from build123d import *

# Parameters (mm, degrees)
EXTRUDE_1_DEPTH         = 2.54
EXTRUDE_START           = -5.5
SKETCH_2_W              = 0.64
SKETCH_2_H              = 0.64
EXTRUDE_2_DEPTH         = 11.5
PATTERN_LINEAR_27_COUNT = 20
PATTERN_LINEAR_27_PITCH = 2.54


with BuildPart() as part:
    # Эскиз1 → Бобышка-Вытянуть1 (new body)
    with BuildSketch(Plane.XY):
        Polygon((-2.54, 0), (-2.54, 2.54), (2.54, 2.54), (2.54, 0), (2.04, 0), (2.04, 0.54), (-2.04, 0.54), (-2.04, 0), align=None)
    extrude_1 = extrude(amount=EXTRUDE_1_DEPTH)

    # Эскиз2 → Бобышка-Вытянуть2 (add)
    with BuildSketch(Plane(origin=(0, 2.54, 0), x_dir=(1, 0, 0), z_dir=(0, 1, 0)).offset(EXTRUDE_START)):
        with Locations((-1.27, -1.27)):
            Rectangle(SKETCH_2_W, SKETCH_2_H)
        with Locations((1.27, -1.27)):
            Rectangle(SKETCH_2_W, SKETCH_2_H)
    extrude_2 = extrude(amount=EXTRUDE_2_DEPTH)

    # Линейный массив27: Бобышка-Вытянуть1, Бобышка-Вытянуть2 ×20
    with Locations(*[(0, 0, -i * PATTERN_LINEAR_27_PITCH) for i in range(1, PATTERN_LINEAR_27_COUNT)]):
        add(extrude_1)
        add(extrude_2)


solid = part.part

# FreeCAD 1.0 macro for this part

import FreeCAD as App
import Part
import Sketcher

V = App.Vector

doc = App.newDocument("Part")
body = doc.addObject("PartDesign::Body", "Body")

sketch1 = body.newObject("Sketcher::SketchObject", "Sketch")
sketch1.AttachmentSupport = (doc.getObject("XY_Plane"), [""])
sketch1.MapMode = "FlatFace"
sketch1.addGeometry(Part.LineSegment(V(-2.5, 2.5, 0), V(-2.5, 0, 0)), False)
sketch1.addGeometry(Part.LineSegment(V(-2.5, 0, 0), V(-2, 0, 0)), False)
sketch1.addGeometry(Part.LineSegment(V(-2, 0, 0), V(-2, 0.5, 0)), False)
sketch1.addGeometry(Part.LineSegment(V(-2, 0.5, 0), V(2, 0.5, 0)), False)
sketch1.addGeometry(Part.LineSegment(V(2, 0.5, 0), V(2, 0, 0)), False)
sketch1.addGeometry(Part.LineSegment(V(2, 0, 0), V(2.5, 0, 0)), False)
sketch1.addGeometry(Part.LineSegment(V(2.5, 0, 0), V(2.5, 2.5, 0)), False)
sketch1.addGeometry(Part.LineSegment(V(2.5, 2.5, 0), V(-2.5, 2.5, 0)), False)
sketch1.addConstraint(Sketcher.Constraint("Coincident", 0, 2, 1, 1))
sketch1.addConstraint(Sketcher.Constraint("Coincident", 1, 2, 2, 1))
sketch1.addConstraint(Sketcher.Constraint("Coincident", 2, 2, 3, 1))
sketch1.addConstraint(Sketcher.Constraint("Coincident", 3, 2, 4, 1))
sketch1.addConstraint(Sketcher.Constraint("Coincident", 4, 2, 5, 1))
sketch1.addConstraint(Sketcher.Constraint("Coincident", 5, 2, 6, 1))
sketch1.addConstraint(Sketcher.Constraint("Coincident", 6, 2, 7, 1))
sketch1.addConstraint(Sketcher.Constraint("Coincident", 7, 2, 0, 1))
sketch1.addConstraint(Sketcher.Constraint("Vertical", 0))
sketch1.addConstraint(Sketcher.Constraint("Horizontal", 1))
sketch1.addConstraint(Sketcher.Constraint("Vertical", 2))
sketch1.addConstraint(Sketcher.Constraint("Horizontal", 3))
sketch1.addConstraint(Sketcher.Constraint("Vertical", 4))
sketch1.addConstraint(Sketcher.Constraint("Horizontal", 5))
sketch1.addConstraint(Sketcher.Constraint("Vertical", 6))
sketch1.addConstraint(Sketcher.Constraint("Horizontal", 7))
sketch1.addConstraint(Sketcher.Constraint("Symmetric", 1, 2, 4, 2, -1, 1))
sketch1.addConstraint(Sketcher.Constraint("Symmetric", 0, 2, 5, 2, -2))
sketch1.addConstraint(Sketcher.Constraint("DistanceX", 1, 1, 1, 2, 0.5))
sketch1.addConstraint(Sketcher.Constraint("DistanceY", 3, 2, 6, 2, 2.0))
sketch1.addConstraint(Sketcher.Constraint("DistanceX", 3, 1, 3, 2, 4.08))
sketch1.addConstraint(Sketcher.Constraint("DistanceY", 0, 2, 0, 1, 2.54))
pad1 = body.newObject("PartDesign::Pad", "Pad")
pad1.Profile = sketch1
pad1.Length = 2.54

sketch2 = body.newObject("Sketcher::SketchObject", "Sketch001")
sketch2.AttachmentSupport = (doc.getObject("XZ_Plane"), [""])
sketch2.MapMode = "FlatFace"
sketch2.AttachmentOffset = App.Placement(V(0, 0, 2.96), App.Rotation())
sketch2.addGeometry(Part.LineSegment(V(-1.6, 0.9, 0), V(-1.6, 1.6, 0)), False)
sketch2.addGeometry(Part.LineSegment(V(-1.6, 1.6, 0), V(-0.9, 1.6, 0)), False)
sketch2.addGeometry(Part.LineSegment(V(-0.9, 1.6, 0), V(-0.9, 0.9, 0)), False)
sketch2.addGeometry(Part.LineSegment(V(-0.9, 0.9, 0), V(-1.6, 0.9, 0)), False)
sketch2.addGeometry(Part.LineSegment(V(0.9, 0.9, 0), V(0.9, 1.6, 0)), False)
sketch2.addGeometry(Part.LineSegment(V(0.9, 1.6, 0), V(1.6, 1.6, 0)), False)
sketch2.addGeometry(Part.LineSegment(V(1.6, 1.6, 0), V(1.6, 0.9, 0)), False)
sketch2.addGeometry(Part.LineSegment(V(1.6, 0.9, 0), V(0.9, 0.9, 0)), False)
sketch2.addConstraint(Sketcher.Constraint("Coincident", 0, 2, 1, 1))
sketch2.addConstraint(Sketcher.Constraint("Coincident", 1, 2, 2, 1))
sketch2.addConstraint(Sketcher.Constraint("Coincident", 2, 2, 3, 1))
sketch2.addConstraint(Sketcher.Constraint("Coincident", 3, 2, 0, 1))
sketch2.addConstraint(Sketcher.Constraint("Coincident", 4, 2, 5, 1))
sketch2.addConstraint(Sketcher.Constraint("Coincident", 5, 2, 6, 1))
sketch2.addConstraint(Sketcher.Constraint("Coincident", 6, 2, 7, 1))
sketch2.addConstraint(Sketcher.Constraint("Coincident", 7, 2, 4, 1))
sketch2.addConstraint(Sketcher.Constraint("Vertical", 0))
sketch2.addConstraint(Sketcher.Constraint("Horizontal", 1))
sketch2.addConstraint(Sketcher.Constraint("Vertical", 2))
sketch2.addConstraint(Sketcher.Constraint("Horizontal", 3))
sketch2.addConstraint(Sketcher.Constraint("Vertical", 4))
sketch2.addConstraint(Sketcher.Constraint("Horizontal", 5))
sketch2.addConstraint(Sketcher.Constraint("Vertical", 6))
sketch2.addConstraint(Sketcher.Constraint("Horizontal", 7))
sketch2.addConstraint(Sketcher.Constraint("Symmetric", 1, 2, 4, 2, -2))
sketch2.addConstraint(Sketcher.Constraint("Symmetric", 3, 2, 6, 2, -2))
sketch2.addConstraint(Sketcher.Constraint("Equal", 7, 0))
sketch2.addConstraint(Sketcher.Constraint("DistanceX", 1, 1, 1, 2, 0.64))
sketch2.addConstraint(Sketcher.Constraint("DistanceX", 1, 2, 4, 2, 1.9))
sketch2.addConstraint(Sketcher.Constraint("DistanceY", -1, 1, 0, 2, 1.59))
pad2 = body.newObject("PartDesign::Pad", "Pad001")
pad2.Profile = sketch2
pad2.Length = 11.5
pad2.Reversed = True
doc.recompute()

linearpattern = body.newObject("PartDesign::LinearPattern", "LinearPattern")
linearpattern.Originals = [pad1, pad2]
linearpattern.Direction = (doc.getObject("Z_Axis"), [""])
linearpattern.Mode = "offset"
linearpattern.Offset = 2.54
linearpattern.Occurrences = 20
linearpattern.Reversed = True
body.Tip = linearpattern

doc.recompute()
